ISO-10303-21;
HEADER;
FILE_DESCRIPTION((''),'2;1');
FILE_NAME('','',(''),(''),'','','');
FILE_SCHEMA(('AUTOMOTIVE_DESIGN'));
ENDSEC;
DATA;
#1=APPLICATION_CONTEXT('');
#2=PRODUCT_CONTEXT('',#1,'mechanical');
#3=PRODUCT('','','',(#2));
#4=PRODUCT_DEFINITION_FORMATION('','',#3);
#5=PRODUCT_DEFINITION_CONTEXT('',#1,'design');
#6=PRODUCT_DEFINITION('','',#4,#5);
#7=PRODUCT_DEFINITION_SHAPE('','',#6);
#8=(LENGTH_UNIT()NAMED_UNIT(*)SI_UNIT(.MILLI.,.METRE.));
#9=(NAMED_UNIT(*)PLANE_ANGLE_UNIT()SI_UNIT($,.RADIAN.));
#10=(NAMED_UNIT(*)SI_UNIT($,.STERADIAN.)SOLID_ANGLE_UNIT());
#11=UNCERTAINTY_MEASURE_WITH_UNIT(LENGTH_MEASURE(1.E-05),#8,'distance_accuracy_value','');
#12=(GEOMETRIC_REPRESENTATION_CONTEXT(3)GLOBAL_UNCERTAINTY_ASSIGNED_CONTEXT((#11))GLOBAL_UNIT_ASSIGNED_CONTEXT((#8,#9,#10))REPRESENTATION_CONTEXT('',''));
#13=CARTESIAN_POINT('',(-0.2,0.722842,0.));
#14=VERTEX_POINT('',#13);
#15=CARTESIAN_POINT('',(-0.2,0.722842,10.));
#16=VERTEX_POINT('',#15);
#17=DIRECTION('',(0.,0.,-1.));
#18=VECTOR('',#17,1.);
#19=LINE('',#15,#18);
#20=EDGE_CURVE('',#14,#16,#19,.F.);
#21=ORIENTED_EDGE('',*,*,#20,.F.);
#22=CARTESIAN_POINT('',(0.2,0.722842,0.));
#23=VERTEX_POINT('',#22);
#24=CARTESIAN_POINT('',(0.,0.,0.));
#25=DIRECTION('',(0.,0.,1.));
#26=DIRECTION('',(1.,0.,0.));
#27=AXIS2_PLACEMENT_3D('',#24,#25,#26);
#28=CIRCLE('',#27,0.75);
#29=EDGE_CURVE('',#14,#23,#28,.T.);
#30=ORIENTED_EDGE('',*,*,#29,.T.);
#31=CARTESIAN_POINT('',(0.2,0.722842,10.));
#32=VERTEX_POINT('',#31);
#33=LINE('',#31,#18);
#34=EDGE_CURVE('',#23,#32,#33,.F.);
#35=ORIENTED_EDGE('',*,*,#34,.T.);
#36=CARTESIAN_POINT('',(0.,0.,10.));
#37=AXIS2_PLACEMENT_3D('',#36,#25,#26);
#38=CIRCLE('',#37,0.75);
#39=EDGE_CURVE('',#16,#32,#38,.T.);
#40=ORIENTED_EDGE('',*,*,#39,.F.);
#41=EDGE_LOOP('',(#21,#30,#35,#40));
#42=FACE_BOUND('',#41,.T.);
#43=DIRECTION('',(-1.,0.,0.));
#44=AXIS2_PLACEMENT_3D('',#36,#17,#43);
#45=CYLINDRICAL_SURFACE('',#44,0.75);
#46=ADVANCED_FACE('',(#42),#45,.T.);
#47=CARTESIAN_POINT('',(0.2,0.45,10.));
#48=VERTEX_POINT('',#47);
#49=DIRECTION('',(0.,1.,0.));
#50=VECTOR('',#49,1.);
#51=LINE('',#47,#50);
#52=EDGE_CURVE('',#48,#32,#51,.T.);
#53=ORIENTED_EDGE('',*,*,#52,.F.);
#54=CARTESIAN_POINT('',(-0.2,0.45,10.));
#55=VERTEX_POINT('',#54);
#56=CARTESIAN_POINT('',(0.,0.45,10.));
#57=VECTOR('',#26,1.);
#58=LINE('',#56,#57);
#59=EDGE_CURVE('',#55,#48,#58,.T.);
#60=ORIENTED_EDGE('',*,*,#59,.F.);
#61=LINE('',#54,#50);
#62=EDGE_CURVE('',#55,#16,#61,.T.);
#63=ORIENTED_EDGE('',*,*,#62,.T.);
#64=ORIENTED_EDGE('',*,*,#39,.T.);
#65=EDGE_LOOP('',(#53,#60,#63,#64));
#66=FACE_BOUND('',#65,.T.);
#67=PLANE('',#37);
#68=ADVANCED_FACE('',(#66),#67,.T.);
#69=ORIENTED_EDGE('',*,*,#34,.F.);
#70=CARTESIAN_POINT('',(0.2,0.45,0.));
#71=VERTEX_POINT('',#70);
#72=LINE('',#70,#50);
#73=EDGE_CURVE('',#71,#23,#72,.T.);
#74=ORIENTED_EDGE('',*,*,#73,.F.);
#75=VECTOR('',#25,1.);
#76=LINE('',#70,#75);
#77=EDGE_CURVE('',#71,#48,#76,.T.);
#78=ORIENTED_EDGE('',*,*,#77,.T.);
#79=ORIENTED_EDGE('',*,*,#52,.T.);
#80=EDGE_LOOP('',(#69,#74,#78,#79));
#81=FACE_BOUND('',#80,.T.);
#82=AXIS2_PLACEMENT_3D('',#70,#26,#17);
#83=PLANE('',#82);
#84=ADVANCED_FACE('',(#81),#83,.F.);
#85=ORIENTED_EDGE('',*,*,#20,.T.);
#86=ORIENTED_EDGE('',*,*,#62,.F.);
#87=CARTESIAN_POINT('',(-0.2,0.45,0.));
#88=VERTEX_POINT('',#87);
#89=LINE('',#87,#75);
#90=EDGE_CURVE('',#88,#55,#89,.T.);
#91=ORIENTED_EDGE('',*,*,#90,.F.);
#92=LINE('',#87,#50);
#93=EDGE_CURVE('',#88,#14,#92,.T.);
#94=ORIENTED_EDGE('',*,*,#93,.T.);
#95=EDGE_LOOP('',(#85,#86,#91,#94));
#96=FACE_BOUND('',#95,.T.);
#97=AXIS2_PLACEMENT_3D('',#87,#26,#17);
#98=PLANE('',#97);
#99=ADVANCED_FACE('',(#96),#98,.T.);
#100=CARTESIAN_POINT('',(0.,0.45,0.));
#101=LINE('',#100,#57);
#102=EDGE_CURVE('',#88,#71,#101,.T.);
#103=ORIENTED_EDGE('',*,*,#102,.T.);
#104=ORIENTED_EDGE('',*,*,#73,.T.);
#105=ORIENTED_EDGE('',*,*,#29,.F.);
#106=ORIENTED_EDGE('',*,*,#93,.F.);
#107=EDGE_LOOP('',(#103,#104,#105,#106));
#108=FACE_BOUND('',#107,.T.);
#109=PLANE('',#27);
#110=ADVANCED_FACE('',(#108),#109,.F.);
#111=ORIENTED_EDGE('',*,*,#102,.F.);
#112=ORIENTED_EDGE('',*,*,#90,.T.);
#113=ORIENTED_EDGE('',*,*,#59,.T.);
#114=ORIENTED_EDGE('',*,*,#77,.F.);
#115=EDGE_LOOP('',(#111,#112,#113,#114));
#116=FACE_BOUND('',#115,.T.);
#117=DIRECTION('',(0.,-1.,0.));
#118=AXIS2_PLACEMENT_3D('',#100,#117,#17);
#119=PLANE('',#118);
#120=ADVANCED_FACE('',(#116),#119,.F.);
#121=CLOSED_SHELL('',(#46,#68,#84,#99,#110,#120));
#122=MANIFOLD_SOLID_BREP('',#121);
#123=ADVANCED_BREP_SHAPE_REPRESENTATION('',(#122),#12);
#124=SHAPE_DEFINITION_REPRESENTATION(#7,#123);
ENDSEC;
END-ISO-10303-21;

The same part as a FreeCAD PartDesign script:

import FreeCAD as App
import Part
import Sketcher
from FreeCAD import Vector
Q = App.Units.Quantity

doc = App.newDocument("Part")
body = doc.addObject("PartDesign::Body", "Body")

sketch1 = doc.addObject("Sketcher::SketchObject", "Sketch")
body.addObject(sketch1)
sketch1.AttachmentSupport = (doc.XY_Plane, [""])
sketch1.MapMode = "FlatFace"
sketch1.addGeometry(Part.Circle(Vector(0, 0, 0), Vector(0, 0, 1), 0.8), False)
sketch1.addConstraint([
    Sketcher.Constraint("Coincident", 0, 3, -1, 1),
    Sketcher.Constraint("Diameter", 0, Q("1.5 mm")),
])
pad1 = doc.addObject("PartDesign::Pad", "Pad")
body.addObject(pad1)
pad1.Profile = sketch1
pad1.Length = 10

sketch2 = doc.addObject("Sketcher::SketchObject", "Sketch001")
body.addObject(sketch2)
sketch2.AttachmentSupport = (doc.XY_Plane, [""])
sketch2.MapMode = "FlatFace"
sketch2.AttachmentOffset = App.Placement(Vector(0, 0, 10), App.Rotation())
sketch2.addGeometry([
    Part.LineSegment(Vector(0, 0.81, 0), Vector(0, 0.45, 0)),
    Part.LineSegment(Vector(0, 0.45, 0), Vector(0.2, 0.45, 0)),
    Part.LineSegment(Vector(0.2, 0.45, 0), Vector(0.2, 0.81, 0)),
    Part.LineSegment(Vector(0.2, 0.81, 0), Vector(0, 0.81, 0)),
], False)
sketch2.addConstraint([
    Sketcher.Constraint("Coincident", 0, 2, 1, 1),
    Sketcher.Constraint("Coincident", 1, 2, 2, 1),
    Sketcher.Constraint("Coincident", 2, 2, 3, 1),
    Sketcher.Constraint("Coincident", 3, 2, 0, 1),
    Sketcher.Constraint("Vertical", 0),
    Sketcher.Constraint("Horizontal", 1),
    Sketcher.Constraint("Vertical", 2),
    Sketcher.Constraint("Horizontal", 3),
    Sketcher.Constraint("PointOnObject", 0, 2, -2),
    Sketcher.Constraint("DistanceX", 1, 1, 1, 2, Q("0.2 mm")),
    Sketcher.Constraint("DistanceY", -1, 1, 0, 2, Q("0.45 mm")),
    Sketcher.Constraint("DistanceY", 0, 2, 0, 1, Q("0.357535 mm")),
])
pocket1 = doc.addObject("PartDesign::Pocket", "Pocket")
body.addObject(pocket1)
pocket1.Profile = sketch2
pocket1.Type = "ThroughAll"
doc.recompute()

mirrored = doc.addObject("PartDesign::Mirrored", "Mirrored")
body.addObject(mirrored)
mirrored.Originals = [pocket1]
mirrored.MirrorPlane = (doc.YZ_Plane, [""])
body.Tip = mirrored

doc.recompute()
